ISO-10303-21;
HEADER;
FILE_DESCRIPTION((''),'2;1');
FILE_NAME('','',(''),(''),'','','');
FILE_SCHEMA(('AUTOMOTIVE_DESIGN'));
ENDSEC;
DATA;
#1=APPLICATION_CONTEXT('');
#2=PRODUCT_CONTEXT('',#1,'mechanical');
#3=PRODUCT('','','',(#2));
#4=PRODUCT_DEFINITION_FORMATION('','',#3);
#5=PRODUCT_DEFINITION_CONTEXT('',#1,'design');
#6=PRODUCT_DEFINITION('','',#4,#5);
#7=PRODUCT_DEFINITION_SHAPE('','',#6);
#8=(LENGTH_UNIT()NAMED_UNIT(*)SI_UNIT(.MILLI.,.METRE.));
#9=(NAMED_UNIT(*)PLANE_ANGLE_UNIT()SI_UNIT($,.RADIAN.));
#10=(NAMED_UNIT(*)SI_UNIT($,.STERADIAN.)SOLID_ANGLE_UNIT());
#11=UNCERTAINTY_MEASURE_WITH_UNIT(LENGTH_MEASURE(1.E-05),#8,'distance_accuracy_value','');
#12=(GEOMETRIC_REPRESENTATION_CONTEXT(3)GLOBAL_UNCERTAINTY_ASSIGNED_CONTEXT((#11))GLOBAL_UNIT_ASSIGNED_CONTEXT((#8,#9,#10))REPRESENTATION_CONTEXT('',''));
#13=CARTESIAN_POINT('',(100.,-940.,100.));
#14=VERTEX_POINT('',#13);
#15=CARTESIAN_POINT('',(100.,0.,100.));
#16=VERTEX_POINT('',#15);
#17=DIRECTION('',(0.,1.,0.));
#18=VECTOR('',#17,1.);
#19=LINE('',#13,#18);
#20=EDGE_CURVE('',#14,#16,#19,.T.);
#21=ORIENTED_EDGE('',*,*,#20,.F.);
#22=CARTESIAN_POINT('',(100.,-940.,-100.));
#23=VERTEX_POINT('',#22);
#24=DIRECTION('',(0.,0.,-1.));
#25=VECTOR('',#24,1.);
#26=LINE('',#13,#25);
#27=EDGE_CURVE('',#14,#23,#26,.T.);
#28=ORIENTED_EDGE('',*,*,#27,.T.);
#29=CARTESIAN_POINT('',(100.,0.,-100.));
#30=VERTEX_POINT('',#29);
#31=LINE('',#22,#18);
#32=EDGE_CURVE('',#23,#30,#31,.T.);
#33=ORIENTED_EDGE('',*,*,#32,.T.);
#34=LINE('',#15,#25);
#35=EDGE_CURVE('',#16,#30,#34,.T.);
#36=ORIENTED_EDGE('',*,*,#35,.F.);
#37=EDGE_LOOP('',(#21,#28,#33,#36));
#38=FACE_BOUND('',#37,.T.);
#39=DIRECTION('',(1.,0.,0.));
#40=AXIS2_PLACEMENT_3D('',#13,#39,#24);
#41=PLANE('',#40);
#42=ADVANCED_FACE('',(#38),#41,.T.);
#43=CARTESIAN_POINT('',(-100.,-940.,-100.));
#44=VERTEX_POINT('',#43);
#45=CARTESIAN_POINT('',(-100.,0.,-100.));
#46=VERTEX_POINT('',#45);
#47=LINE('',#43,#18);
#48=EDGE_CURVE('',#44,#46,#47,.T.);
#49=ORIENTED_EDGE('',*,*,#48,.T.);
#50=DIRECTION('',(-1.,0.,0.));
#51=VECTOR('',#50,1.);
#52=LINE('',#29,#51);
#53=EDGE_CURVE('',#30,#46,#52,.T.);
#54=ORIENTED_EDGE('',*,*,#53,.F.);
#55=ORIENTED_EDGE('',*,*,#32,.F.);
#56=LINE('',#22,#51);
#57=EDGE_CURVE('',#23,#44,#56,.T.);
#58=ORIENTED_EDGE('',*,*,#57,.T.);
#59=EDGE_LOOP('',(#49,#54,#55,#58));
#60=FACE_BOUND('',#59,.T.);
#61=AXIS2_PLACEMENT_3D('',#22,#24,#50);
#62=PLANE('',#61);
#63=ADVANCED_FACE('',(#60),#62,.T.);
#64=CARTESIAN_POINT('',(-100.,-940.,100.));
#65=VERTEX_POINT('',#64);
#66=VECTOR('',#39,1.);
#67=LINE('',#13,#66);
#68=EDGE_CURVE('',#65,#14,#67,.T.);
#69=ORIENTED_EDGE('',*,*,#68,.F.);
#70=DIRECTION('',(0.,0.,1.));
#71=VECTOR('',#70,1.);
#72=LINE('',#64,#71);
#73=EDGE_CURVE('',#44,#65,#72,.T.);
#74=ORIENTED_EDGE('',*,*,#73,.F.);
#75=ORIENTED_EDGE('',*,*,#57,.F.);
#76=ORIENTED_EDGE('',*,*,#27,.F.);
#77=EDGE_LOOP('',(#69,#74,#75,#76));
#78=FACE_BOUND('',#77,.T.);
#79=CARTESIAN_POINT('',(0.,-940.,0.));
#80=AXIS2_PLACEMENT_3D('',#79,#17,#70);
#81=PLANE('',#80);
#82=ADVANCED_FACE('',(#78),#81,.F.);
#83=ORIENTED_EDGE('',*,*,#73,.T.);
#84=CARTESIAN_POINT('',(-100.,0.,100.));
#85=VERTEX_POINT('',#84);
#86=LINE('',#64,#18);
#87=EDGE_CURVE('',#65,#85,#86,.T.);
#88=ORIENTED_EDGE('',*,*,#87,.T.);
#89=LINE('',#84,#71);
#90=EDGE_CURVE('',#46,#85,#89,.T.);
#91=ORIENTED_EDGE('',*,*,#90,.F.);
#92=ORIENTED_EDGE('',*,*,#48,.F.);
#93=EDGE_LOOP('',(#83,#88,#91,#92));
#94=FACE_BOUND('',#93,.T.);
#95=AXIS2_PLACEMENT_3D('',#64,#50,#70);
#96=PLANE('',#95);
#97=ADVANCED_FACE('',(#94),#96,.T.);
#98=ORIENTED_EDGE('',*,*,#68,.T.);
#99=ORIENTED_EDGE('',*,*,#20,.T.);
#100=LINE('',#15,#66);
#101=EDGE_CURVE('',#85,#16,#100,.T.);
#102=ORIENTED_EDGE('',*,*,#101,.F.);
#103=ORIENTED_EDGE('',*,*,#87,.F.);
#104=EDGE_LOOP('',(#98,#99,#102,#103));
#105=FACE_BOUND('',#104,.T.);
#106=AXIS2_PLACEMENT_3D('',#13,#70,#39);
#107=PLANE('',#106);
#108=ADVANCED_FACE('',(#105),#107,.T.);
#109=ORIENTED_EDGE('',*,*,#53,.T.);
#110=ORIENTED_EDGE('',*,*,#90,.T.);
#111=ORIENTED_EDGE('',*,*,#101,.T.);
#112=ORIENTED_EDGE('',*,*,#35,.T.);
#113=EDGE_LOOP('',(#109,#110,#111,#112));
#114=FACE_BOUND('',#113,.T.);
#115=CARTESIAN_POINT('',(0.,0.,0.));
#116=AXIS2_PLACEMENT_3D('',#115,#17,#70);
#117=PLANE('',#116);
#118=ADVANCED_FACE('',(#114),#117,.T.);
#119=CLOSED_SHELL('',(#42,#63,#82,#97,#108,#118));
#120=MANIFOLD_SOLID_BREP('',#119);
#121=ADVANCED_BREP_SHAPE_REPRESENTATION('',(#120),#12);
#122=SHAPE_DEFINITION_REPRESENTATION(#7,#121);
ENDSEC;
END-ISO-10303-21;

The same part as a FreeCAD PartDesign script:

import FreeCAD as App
import Part
import Sketcher

V = App.Vector

doc = App.newDocument("Part")
params = doc.addObject("Spreadsheet::Sheet", "Params")
for row, (alias, value) in enumerate([
    ("sketch1_width", "200 mm"),
    ("pad1_length", "940 mm"),
], start=1):
    params.set(f"A{row}", alias)
    params.set(f"B{row}", "=" + value)
    params.setAlias(f"B{row}", alias)

body = doc.addObject("PartDesign::Body", "Body")

# Sketch on XZ plane
sketch1 = body.newObject("Sketcher::SketchObject", "Sketch")
sketch1.AttachmentSupport = (doc.getObject("XZ_Plane"), [""])
sketch1.MapMode = "FlatFace"
sketch1.addGeometry([
    Part.LineSegment(V(-100, -100, 0), V(-100, 100, 0)),
    Part.LineSegment(V(-100, 100, 0), V(100, 100, 0)),
    Part.LineSegment(V(100, 100, 0), V(100, -100, 0)),
    Part.LineSegment(V(100, -100, 0), V(-100, -100, 0)),
], False)
sketch1.addConstraint([
    Sketcher.Constraint("Coincident", 0, 2, 1, 1),
    Sketcher.Constraint("Coincident", 1, 2, 2, 1),
    Sketcher.Constraint("Coincident", 2, 2, 3, 1),
    Sketcher.Constraint("Coincident", 3, 2, 0, 1),
    Sketcher.Constraint("Vertical", 0),
    Sketcher.Constraint("Horizontal", 1),
    Sketcher.Constraint("Vertical", 2),
    Sketcher.Constraint("Horizontal", 3),
    Sketcher.Constraint("Symmetric", 0, 2, 2, 2, -1, 1),
    Sketcher.Constraint("Equal", 3, 0),
    Sketcher.Constraint("DistanceX", 1, 1, 1, 2, 200.0),
])
sketch1.setExpression("Constraints[10]", "Params.sketch1_width")
pad1 = body.newObject("PartDesign::Pad", "Pad")
pad1.Profile = sketch1
pad1.setExpression("Length", "Params.pad1_length")

doc.recompute()
